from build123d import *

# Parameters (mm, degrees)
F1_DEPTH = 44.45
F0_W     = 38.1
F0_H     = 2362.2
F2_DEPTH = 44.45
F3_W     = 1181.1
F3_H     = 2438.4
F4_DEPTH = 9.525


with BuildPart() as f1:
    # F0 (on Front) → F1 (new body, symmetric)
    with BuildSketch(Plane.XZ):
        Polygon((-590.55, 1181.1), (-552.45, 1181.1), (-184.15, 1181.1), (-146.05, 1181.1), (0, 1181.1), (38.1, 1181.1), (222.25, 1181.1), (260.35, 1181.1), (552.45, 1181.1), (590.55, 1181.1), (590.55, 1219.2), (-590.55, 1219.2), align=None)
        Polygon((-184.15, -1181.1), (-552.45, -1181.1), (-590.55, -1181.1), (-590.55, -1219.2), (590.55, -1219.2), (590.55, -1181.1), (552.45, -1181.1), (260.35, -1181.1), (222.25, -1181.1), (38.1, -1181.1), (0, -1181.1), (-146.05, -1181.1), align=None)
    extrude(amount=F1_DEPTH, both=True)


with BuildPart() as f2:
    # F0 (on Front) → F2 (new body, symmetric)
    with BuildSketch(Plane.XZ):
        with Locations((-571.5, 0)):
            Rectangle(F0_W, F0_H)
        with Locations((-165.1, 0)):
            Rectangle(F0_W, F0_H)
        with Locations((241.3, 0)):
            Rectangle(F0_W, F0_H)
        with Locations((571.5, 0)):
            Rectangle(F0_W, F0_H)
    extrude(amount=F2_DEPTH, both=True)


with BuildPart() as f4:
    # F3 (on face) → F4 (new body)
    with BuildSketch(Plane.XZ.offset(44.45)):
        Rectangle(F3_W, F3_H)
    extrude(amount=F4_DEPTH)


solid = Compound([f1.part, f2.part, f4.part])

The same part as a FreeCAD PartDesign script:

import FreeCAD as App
import Part
import Sketcher
from FreeCAD import Vector
Q = App.Units.Quantity


def add_polygon(sketch, points):
    """Adds a closed chain of lines whose ends are joined by coincident constraints."""
    first, n = sketch.GeometryCount, len(points)
    for a, b in zip(points, points[1:] + points[:1]):
        sketch.addGeometry(Part.LineSegment(App.Vector(*a, 0), App.Vector(*b, 0)), False)
    for i in range(n):
        sketch.addConstraint(Sketcher.Constraint("Coincident", first + i, 2, first + (i + 1) % n, 1))

doc = App.newDocument("Part")
params = doc.addObject("Spreadsheet::Sheet", "Params")
for row, (alias, value) in enumerate([
    ("sketch1_width", "46.5 in"),
    ("sketch1_height", "1.5 in"),
    ("pad1_length", "3.5 in"),
    ("sketch2_height", "93 in"),
    ("sketch2_width", "1.5 in"),
    ("pad2_length", "3.5 in"),
    ("sketch3_height", "96 in"),
    ("sketch3_width", "46.5 in"),
    ("pad3_length", "0.375 in"),
], start=1):
    params.set(f"A{row}", alias)
    params.set(f"B{row}", "=" + value)
    params.setAlias(f"B{row}", alias)

body = doc.addObject("PartDesign::Body", "Body")
body.AllowCompound = True

# Sketch on XZ plane
sketch1 = body.newObject("Sketcher::SketchObject", "Sketch")
sketch1.AttachmentSupport = (doc.getObject("XZ_Plane"), [""])
sketch1.MapMode = "FlatFace"
add_polygon(sketch1, [(-591, 1181), (591, 1181), (591, 1219), (-591, 1219)])  # lines 0-3
add_polygon(sketch1, [(-591, -1181), (-591, -1219), (591, -1219), (591, -1181)])  # lines 4-7
sketch1.addConstraint([
    Sketcher.Constraint("Horizontal", 0),
    Sketcher.Constraint("Vertical", 1),
    Sketcher.Constraint("Horizontal", 2),
    Sketcher.Constraint("Vertical", 3),
    Sketcher.Constraint("Vertical", 4),
    Sketcher.Constraint("Horizontal", 5),
    Sketcher.Constraint("Vertical", 6),
    Sketcher.Constraint("Horizontal", 7),
    Sketcher.Constraint("Symmetric", 1, 2, 4, 2, -1, 1),
    Sketcher.Constraint("Symmetric", 3, 2, 6, 2, -1, 1),
    Sketcher.Constraint("Vertical", 3, 2, 4, 2),
    Sketcher.Constraint("DistanceX", 0, 1, 0, 2, Q("46.5 in")),
    Sketcher.Constraint("DistanceY", 1, 1, 1, 2, Q("1.5 in")),
    Sketcher.Constraint("DistanceY", -1, 1, 1, 2, Q("48 in")),
])
sketch1.setExpression("Constraints[19]", "Params.sketch1_width")
sketch1.setExpression("Constraints[20]", "Params.sketch1_height")
pad1 = body.newObject("PartDesign::Pad", "Pad")
pad1.Profile = sketch1
pad1.setExpression("Length", "Params.pad1_length")
pad1.Midplane = True
body2 = doc.addObject("PartDesign::Body", "Body001")
body2.AllowCompound = True

# Sketch on XZ plane
sketch2 = body2.newObject("Sketcher::SketchObject", "Sketch001")
sketch2.AttachmentSupport = (doc.getObject("XZ_Plane001"), [""])
sketch2.MapMode = "FlatFace"
add_polygon(sketch2, [(-591, 1181), (-591, -1181), (-552, -1181), (-552, 1181)])  # lines 0-3
add_polygon(sketch2, [(-184, 1181), (-184, -1181), (-146, -1181), (-146, 1181)])  # lines 4-7
add_polygon(sketch2, [(222, 1181), (222, -1181), (260, -1181), (260, 1181)])  # lines 8-11
add_polygon(sketch2, [(552, 1181), (552, -1181), (591, -1181), (591, 1181)])  # lines 12-15
sketch2.addConstraint([
    Sketcher.Constraint("Vertical", 0),
    Sketcher.Constraint("Horizontal", 1),
    Sketcher.Constraint("Vertical", 2),
    Sketcher.Constraint("Horizontal", 3),
    Sketcher.Constraint("Vertical", 4),
    Sketcher.Constraint("Horizontal", 5),
    Sketcher.Constraint("Vertical", 6),
    Sketcher.Constraint("Horizontal", 7),
    Sketcher.Constraint("Vertical", 8),
    Sketcher.Constraint("Horizontal", 9),
    Sketcher.Constraint("Vertical", 10),
    Sketcher.Constraint("Horizontal", 11),
    Sketcher.Constraint("Vertical", 12),
    Sketcher.Constraint("Horizontal", 13),
    Sketcher.Constraint("Vertical", 14),
    Sketcher.Constraint("Horizontal", 15),
    Sketcher.Constraint("Symmetric", 2, 2, 12, 2, -1, 1),
    Sketcher.Constraint("Symmetric", 0, 2, 14, 2, -1, 1),
    Sketcher.Constraint("Horizontal", 1, 2, 4, 2),
    Sketcher.Constraint("Horizontal", 3, 2, 6, 2),
    Sketcher.Constraint("Horizontal", 5, 2, 8, 2),
    Sketcher.Constraint("Horizontal", 7, 2, 10, 2),
    Sketcher.Constraint("Horizontal", 9, 2, 12, 2),
    Sketcher.Constraint("Equal", 3, 5),
    Sketcher.Constraint("Equal", 7, 9),
    Sketcher.Constraint("DistanceY", 0, 2, 0, 1, Q("93 in")),
    Sketcher.Constraint("DistanceX", 1, 1, 1, 2, Q("1.5 in")),
    Sketcher.Constraint("DistanceX", 0, 2, 4, 2, Q("16 in")),
    Sketcher.Constraint("DistanceX", 4, 2, 8, 2, Q("16 in")),
    Sketcher.Constraint("DistanceX", 8, 2, 12, 2, Q("13 in")),
])
sketch2.setExpression("Constraints[41]", "Params.sketch2_height")
sketch2.setExpression("Constraints[42]", "Params.sketch2_width")
pad2 = body2.newObject("PartDesign::Pad", "Pad001")
pad2.Profile = sketch2
pad2.setExpression("Length", "Params.pad2_length")
pad2.Midplane = True
body3 = doc.addObject("PartDesign::Body", "Body002")

# Sketch on XZ plane
sketch3 = body3.newObject("Sketcher::SketchObject", "Sketch002")
sketch3.AttachmentSupport = (doc.getObject("XZ_Plane002"), [""])
sketch3.MapMode = "FlatFace"
sketch3.AttachmentOffset = App.Placement(Vector(0, 0, 1.75 * 25.4), App.Rotation())
add_polygon(sketch3, [(-591, 1219), (-591, -1219), (591, -1219), (591, 1219)])  # lines 0-3
sketch3.addConstraint([
    Sketcher.Constraint("Vertical", 0),
    Sketcher.Constraint("Horizontal", 1),
    Sketcher.Constraint("Vertical", 2),
    Sketcher.Constraint("Horizontal", 3),
    Sketcher.Constraint("Symmetric", 0, 2, 2, 2, -1, 1),
    Sketcher.Constraint("DistanceY", 0, 2, 0, 1, Q("96 in")),
    Sketcher.Constraint("DistanceX", 1, 1, 1, 2, Q("46.5 in")),
])
sketch3.setExpression("Constraints[9]", "Params.sketch3_height")
sketch3.setExpression("Constraints[10]", "Params.sketch3_width")
pad3 = body3.newObject("PartDesign::Pad", "Pad002")
pad3.Profile = sketch3
pad3.setExpression("Length", "Params.pad3_length")

doc.recompute()
